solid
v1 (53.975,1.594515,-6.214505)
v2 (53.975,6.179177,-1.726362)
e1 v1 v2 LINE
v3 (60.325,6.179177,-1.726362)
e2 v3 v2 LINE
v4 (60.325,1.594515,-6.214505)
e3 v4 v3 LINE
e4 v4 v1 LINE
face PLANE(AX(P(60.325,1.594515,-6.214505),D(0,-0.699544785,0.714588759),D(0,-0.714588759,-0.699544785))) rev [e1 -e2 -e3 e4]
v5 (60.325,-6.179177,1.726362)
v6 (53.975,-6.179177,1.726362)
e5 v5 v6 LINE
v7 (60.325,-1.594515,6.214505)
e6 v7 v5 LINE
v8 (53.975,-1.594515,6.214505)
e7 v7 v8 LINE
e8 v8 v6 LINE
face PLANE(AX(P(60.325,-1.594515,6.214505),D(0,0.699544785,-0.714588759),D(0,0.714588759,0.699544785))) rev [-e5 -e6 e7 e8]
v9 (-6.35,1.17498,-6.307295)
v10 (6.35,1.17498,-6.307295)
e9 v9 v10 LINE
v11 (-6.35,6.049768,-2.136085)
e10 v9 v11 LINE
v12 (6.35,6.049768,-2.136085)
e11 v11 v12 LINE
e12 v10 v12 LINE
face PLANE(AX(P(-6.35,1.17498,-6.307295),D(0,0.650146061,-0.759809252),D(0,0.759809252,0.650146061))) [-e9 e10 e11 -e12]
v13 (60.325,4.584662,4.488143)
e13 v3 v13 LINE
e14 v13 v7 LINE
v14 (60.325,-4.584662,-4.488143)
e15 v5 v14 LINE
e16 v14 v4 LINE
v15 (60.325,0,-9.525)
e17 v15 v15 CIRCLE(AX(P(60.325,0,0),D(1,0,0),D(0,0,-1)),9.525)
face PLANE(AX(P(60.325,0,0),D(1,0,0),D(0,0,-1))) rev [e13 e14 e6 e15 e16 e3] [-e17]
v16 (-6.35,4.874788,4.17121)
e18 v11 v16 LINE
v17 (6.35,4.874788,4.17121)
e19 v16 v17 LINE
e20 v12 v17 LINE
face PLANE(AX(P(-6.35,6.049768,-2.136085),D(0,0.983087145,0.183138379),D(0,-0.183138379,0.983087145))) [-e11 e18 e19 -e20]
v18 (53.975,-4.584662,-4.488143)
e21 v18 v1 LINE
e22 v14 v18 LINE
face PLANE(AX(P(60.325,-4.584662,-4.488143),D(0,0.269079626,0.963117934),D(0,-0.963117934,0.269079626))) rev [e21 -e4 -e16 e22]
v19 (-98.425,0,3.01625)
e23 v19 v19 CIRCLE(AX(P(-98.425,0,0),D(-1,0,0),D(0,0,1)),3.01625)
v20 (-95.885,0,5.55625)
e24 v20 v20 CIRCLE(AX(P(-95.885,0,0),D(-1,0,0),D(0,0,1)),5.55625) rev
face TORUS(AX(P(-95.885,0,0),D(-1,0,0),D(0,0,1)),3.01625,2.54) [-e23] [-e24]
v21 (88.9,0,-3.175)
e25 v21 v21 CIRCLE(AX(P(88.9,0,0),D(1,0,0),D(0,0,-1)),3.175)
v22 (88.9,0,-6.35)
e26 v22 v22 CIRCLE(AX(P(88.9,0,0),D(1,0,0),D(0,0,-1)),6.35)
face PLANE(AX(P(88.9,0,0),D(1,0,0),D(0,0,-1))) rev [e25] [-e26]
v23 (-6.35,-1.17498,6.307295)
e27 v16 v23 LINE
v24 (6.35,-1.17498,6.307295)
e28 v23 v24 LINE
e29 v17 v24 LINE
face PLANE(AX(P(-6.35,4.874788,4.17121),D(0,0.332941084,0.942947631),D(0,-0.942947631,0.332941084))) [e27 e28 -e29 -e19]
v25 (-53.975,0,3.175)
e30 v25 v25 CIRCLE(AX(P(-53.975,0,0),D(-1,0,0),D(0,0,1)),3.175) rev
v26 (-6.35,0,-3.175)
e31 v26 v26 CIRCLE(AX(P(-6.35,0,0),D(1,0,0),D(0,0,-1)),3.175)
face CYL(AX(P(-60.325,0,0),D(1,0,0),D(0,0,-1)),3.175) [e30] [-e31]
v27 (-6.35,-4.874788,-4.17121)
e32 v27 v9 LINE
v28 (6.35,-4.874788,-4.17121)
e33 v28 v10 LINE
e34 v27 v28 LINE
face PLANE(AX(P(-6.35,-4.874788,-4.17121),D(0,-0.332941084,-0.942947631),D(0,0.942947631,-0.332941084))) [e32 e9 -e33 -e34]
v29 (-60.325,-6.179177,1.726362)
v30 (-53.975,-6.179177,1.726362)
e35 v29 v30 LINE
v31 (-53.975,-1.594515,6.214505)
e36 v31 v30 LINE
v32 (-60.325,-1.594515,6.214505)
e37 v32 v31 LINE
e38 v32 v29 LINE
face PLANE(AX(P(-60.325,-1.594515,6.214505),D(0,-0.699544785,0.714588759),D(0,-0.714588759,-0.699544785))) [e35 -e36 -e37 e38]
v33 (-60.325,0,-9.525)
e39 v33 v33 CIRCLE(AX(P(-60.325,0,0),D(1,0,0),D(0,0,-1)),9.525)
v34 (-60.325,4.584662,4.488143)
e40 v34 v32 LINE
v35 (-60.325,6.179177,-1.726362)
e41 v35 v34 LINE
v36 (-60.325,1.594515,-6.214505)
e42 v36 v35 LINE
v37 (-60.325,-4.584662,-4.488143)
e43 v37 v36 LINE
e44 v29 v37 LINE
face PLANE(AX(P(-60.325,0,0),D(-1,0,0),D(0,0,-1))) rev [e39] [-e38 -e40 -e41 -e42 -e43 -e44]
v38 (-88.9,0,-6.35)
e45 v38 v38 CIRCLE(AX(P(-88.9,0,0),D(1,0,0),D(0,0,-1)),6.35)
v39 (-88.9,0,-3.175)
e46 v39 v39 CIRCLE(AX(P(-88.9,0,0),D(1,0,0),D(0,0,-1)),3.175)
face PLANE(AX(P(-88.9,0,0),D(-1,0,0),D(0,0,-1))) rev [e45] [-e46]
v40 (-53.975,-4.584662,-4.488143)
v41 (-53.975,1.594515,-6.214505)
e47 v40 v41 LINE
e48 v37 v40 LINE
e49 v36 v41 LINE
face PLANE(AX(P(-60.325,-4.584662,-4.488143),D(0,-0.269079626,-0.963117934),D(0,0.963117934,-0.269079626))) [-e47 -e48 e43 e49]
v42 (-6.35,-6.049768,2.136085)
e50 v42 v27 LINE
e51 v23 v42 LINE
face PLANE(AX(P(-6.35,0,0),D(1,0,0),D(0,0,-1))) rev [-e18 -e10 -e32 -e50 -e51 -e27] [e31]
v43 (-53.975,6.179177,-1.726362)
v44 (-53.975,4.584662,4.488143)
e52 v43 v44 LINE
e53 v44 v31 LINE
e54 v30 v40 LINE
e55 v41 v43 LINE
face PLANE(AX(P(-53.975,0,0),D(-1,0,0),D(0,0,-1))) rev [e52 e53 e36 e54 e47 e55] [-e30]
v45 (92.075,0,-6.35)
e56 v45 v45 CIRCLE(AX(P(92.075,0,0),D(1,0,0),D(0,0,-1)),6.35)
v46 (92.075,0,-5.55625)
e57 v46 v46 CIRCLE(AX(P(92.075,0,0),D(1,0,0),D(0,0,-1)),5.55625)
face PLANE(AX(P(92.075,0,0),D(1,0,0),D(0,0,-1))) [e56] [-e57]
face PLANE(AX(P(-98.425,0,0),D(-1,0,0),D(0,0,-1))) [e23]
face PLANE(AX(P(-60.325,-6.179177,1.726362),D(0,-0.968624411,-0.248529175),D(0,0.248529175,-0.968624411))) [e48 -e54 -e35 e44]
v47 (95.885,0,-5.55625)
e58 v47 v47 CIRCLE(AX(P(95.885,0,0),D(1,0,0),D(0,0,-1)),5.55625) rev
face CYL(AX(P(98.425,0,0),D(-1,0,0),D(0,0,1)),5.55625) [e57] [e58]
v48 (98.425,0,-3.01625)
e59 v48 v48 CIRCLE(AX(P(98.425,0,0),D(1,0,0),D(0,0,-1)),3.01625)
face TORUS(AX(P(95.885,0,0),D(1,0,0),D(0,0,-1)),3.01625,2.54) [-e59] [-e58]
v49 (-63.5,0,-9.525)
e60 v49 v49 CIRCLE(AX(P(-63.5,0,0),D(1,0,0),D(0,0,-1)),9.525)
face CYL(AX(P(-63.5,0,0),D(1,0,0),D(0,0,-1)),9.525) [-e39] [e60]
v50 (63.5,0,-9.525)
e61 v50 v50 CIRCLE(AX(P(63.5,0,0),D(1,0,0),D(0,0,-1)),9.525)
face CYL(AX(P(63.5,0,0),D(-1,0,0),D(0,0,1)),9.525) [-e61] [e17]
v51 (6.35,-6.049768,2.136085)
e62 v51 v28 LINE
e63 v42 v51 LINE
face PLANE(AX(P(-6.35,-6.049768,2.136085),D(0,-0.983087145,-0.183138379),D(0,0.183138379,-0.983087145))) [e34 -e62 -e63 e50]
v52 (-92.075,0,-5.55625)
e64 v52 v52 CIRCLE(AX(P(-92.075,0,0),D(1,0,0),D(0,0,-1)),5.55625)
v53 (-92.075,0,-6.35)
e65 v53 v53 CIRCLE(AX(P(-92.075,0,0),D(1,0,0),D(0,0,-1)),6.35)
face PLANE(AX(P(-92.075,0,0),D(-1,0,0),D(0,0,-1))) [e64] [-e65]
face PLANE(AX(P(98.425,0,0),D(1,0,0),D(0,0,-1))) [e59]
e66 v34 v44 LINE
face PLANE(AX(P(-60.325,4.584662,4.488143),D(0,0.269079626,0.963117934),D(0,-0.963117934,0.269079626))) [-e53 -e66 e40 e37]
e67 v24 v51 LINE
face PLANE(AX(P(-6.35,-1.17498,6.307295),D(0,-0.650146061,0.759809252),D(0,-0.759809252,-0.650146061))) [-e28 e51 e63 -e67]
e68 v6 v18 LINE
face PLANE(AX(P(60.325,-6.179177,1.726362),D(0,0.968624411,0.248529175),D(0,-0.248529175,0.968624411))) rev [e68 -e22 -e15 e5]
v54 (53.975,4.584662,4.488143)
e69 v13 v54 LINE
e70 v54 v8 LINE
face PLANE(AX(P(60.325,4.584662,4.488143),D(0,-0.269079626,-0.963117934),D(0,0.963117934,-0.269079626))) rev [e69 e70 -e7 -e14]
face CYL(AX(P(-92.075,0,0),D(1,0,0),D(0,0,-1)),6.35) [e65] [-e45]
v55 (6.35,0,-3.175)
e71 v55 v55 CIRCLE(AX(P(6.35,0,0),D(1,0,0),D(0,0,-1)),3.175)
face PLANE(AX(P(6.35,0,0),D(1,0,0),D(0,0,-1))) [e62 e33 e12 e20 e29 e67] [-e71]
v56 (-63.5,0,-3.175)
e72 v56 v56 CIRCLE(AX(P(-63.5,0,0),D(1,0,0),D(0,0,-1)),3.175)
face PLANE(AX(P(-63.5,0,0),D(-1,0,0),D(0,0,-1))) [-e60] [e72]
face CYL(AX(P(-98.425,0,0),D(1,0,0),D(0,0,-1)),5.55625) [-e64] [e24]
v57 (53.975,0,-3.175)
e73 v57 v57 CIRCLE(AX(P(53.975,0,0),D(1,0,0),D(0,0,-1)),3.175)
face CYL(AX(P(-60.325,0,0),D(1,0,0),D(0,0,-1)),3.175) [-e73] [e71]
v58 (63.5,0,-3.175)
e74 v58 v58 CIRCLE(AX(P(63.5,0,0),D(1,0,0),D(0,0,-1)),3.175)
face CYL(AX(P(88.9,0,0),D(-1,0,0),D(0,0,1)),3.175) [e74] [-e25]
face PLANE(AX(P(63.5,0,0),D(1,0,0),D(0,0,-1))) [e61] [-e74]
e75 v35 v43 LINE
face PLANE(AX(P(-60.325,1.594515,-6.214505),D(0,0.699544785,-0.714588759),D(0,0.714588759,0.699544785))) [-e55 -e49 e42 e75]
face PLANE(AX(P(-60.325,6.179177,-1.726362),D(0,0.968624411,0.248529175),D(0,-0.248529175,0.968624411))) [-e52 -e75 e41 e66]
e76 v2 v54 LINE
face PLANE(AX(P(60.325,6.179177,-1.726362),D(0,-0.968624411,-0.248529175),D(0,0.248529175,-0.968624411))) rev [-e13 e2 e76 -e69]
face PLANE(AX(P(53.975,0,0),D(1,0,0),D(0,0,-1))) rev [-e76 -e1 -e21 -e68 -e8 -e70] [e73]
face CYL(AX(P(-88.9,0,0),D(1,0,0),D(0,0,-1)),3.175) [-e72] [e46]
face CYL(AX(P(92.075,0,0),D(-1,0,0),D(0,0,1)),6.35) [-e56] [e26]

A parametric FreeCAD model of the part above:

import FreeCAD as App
import Part
import Sketcher

V = App.Vector
Q = App.Units.Quantity


def edges_at(feature, points):
    """Names of the edges that pass closest to the given points."""
    edges = feature.Shape.Edges
    near = lambda p: min(range(len(edges)), key=lambda i: edges[i].distToShape(Part.Vertex(*p))[0])
    return sorted({f"Edge{near(p) + 1}" for p in points})

doc = App.newDocument("Part")
body = doc.addObject("PartDesign::Body", "Body")

# Sketch on YZ plane
sketch1 = body.newObject("Sketcher::SketchObject", "Sketch")
sketch1.AttachmentSupport = (doc.getObject("YZ_Plane"), [""])
sketch1.MapMode = "FlatFace"
sketch1.addGeometry(Part.LineSegment(V(-4.874788, -4.17121, 0), V(1.17498, -6.307295, 0)), False)
sketch1.addGeometry(Part.LineSegment(V(1.17498, -6.307295, 0), V(6.049768, -2.136085, 0)), False)
sketch1.addGeometry(Part.LineSegment(V(6.049768, -2.136085, 0), V(4.874788, 4.17121, 0)), False)
sketch1.addGeometry(Part.LineSegment(V(4.874788, 4.17121, 0), V(-1.17498, 6.307295, 0)), False)
sketch1.addGeometry(Part.LineSegment(V(-1.17498, 6.307295, 0), V(-6.049768, 2.136085, 0)), False)
sketch1.addGeometry(Part.LineSegment(V(-6.049768, 2.136085, 0), V(-4.874788, -4.17121, 0)), False)
sketch1.addConstraint(Sketcher.Constraint("Coincident", 0, 2, 1, 1))
sketch1.addConstraint(Sketcher.Constraint("Coincident", 1, 2, 2, 1))
sketch1.addConstraint(Sketcher.Constraint("Coincident", 2, 2, 3, 1))
sketch1.addConstraint(Sketcher.Constraint("Coincident", 3, 2, 4, 1))
sketch1.addConstraint(Sketcher.Constraint("Coincident", 4, 2, 5, 1))
sketch1.addConstraint(Sketcher.Constraint("Coincident", 5, 2, 0, 1))
sketch1.addConstraint(Sketcher.Constraint("Symmetric", 0, 2, 3, 2, -1, 1))
sketch1.addConstraint(Sketcher.Constraint("Symmetric", 1, 2, 4, 2, -1, 1))
sketch1.addConstraint(Sketcher.Constraint("Symmetric", 2, 2, 5, 2, -1, 1))
sketch1.addConstraint(Sketcher.Constraint("Equal", 0, 1))
sketch1.addConstraint(Sketcher.Constraint("Equal", 1, 2))
sketch1.addConstraint(Sketcher.Constraint("DistanceX", -1, 1, 0, 2, 1.17498))
sketch1.addConstraint(Sketcher.Constraint("DistanceY", -1, 1, 2, 2, 4.17121))
sketch1.addConstraint(Sketcher.Constraint("DistanceY", 0, 2, 1, 2, 4.17121))
sketch1.addConstraint(Sketcher.Constraint("DistanceX", 2, 2, 1, 2, 1.17498))
pad1 = body.newObject("PartDesign::Pad", "Pad")
pad1.Profile = sketch1
pad1.Type = "TwoLengths"
pad1.Length = Q("0.25 in")
pad1.Length2 = Q("0.25 in")

# Sketch on YZ plane
sketch2 = body.newObject("Sketcher::SketchObject", "Sketch001")
sketch2.AttachmentSupport = (doc.getObject("YZ_Plane"), [""])
sketch2.MapMode = "FlatFace"
sketch2.AttachmentOffset = App.Placement(V(0, 0, 0.25 * 25.4), App.Rotation())
sketch2.addGeometry(Part.Circle(V(0, 0, 0), V(0, 0, 1), 3.175), False)
sketch2.addConstraint(Sketcher.Constraint("Coincident", 0, 3, -1, 1))
sketch2.addConstraint(Sketcher.Constraint("Diameter", 0, Q("0.25 in")))
pad2 = body.newObject("PartDesign::Pad", "Pad001")
pad2.Profile = sketch2
pad2.Type = "TwoLengths"
pad2.Length = Q("1.875 in")
pad2.Length2 = Q("2.625 in")

# Sketch on YZ plane
sketch3 = body.newObject("Sketcher::SketchObject", "Sketch002")
sketch3.AttachmentSupport = (doc.getObject("YZ_Plane"), [""])
sketch3.MapMode = "FlatFace"
sketch3.AttachmentOffset = App.Placement(V(0, 0, 2.125 * 25.4), App.Rotation())
sketch3.addGeometry(Part.LineSegment(V(-4.584662, -4.488143, 0), V(1.594515, -6.214505, 0)), False)
sketch3.addGeometry(Part.LineSegment(V(1.594515, -6.214505, 0), V(6.179177, -1.726362, 0)), False)
sketch3.addGeometry(Part.LineSegment(V(6.179177, -1.726362, 0), V(4.584662, 4.488143, 0)), False)
sketch3.addGeometry(Part.LineSegment(V(4.584662, 4.488143, 0), V(-1.594515, 6.214505, 0)), False)
sketch3.addGeometry(Part.LineSegment(V(-1.594515, 6.214505, 0), V(-6.179177, 1.726362, 0)), False)
sketch3.addGeometry(Part.LineSegment(V(-6.179177, 1.726362, 0), V(-4.584662, -4.488143, 0)), False)
sketch3.addConstraint(Sketcher.Constraint("Coincident", 0, 2, 1, 1))
sketch3.addConstraint(Sketcher.Constraint("Coincident", 1, 2, 2, 1))
sketch3.addConstraint(Sketcher.Constraint("Coincident", 2, 2, 3, 1))
sketch3.addConstraint(Sketcher.Constraint("Coincident", 3, 2, 4, 1))
sketch3.addConstraint(Sketcher.Constraint("Coincident", 4, 2, 5, 1))
sketch3.addConstraint(Sketcher.Constraint("Coincident", 5, 2, 0, 1))
sketch3.addConstraint(Sketcher.Constraint("Symmetric", 0, 2, 3, 2, -1, 1))
sketch3.addConstraint(Sketcher.Constraint("Symmetric", 1, 2, 4, 2, -1, 1))
sketch3.addConstraint(Sketcher.Constraint("Symmetric", 2, 2, 5, 2, -1, 1))
sketch3.addConstraint(Sketcher.Constraint("Equal", 0, 1))
sketch3.addConstraint(Sketcher.Constraint("Equal", 1, 2))
sketch3.addConstraint(Sketcher.Constraint("DistanceY", 0, 2, 2, 2, 10.702648))
sketch3.addConstraint(Sketcher.Constraint("DistanceX", 3, 2, 1, 2, 7.773691))
sketch3.addConstraint(Sketcher.Constraint("DistanceX", 3, 2, 0, 2, 3.189029))
sketch3.addConstraint(Sketcher.Constraint("DistanceY", 0, 2, 3, 2, 12.42901))
pad3 = body.newObject("PartDesign::Pad", "Pad002")
pad3.Profile = sketch3
pad3.Length = Q("0.25 in")

# Sketch on YZ plane
sketch4 = body.newObject("Sketcher::SketchObject", "Sketch003")
sketch4.AttachmentSupport = (doc.getObject("YZ_Plane"), [""])
sketch4.MapMode = "FlatFace"
sketch4.AttachmentOffset = App.Placement(V(0, 0, 2.375 * 25.4), App.Rotation())
sketch4.addGeometry(Part.Circle(V(0, 0, 0), V(0, 0, 1), 9.525), False)
sketch4.addConstraint(Sketcher.Constraint("Coincident", 0, 3, -1, 1))
sketch4.addConstraint(Sketcher.Constraint("Diameter", 0, Q("0.75 in")))
pad4 = body.newObject("PartDesign::Pad", "Pad003")
pad4.Profile = sketch4
pad4.Length = Q("0.125 in")
doc.recompute()

mirrored = body.newObject("PartDesign::Mirrored", "Mirrored")
mirrored.Originals = [pad3, pad4]
mirrored.MirrorPlane = (doc.getObject("YZ_Plane"), [""])
body.Tip = mirrored

# Sketch on YZ plane
sketch5 = body.newObject("Sketcher::SketchObject", "Sketch004")
sketch5.AttachmentSupport = (doc.getObject("YZ_Plane"), [""])
sketch5.MapMode = "FlatFace"
sketch5.AttachmentOffset = App.Placement(V(0, 0, 2.5 * 25.4), App.Rotation())
sketch5.addGeometry(Part.Circle(V(0, 0, 0), V(0, 0, 1), 3.175), False)
sketch5.addConstraint(Sketcher.Constraint("Coincident", 0, 3, -1, 1))
sketch5.addConstraint(Sketcher.Constraint("Diameter", 0, Q("0.25 in")))
pad5 = body.newObject("PartDesign::Pad", "Pad004")
pad5.Profile = sketch5
pad5.Length = Q("1 in")

# Sketch on YZ plane
sketch6 = body.newObject("Sketcher::SketchObject", "Sketch005")
sketch6.AttachmentSupport = (doc.getObject("YZ_Plane"), [""])
sketch6.MapMode = "FlatFace"
sketch6.AttachmentOffset = App.Placement(V(0, 0, 3.5 * 25.4), App.Rotation())
sketch6.addGeometry(Part.Circle(V(0, 0, 0), V(0, 0, 1), 6.35), False)
sketch6.addConstraint(Sketcher.Constraint("Coincident", 0, 3, -1, 1))
sketch6.addConstraint(Sketcher.Constraint("Diameter", 0, Q("0.5 in")))
pad6 = body.newObject("PartDesign::Pad", "Pad005")
pad6.Profile = sketch6
pad6.Length = Q("0.125 in")

# Sketch on YZ plane
sketch7 = body.newObject("Sketcher::SketchObject", "Sketch006")
sketch7.AttachmentSupport = (doc.getObject("YZ_Plane"), [""])
sketch7.MapMode = "FlatFace"
sketch7.AttachmentOffset = App.Placement(V(0, 0, 3.625 * 25.4), App.Rotation())
sketch7.addGeometry(Part.Circle(V(0, 0, 0), V(0, 0, 1), 5.55625), False)
sketch7.addConstraint(Sketcher.Constraint("Coincident", 0, 3, -1, 1))
sketch7.addConstraint(Sketcher.Constraint("Diameter", 0, Q("0.4375 in")))
pad7 = body.newObject("PartDesign::Pad", "Pad006")
pad7.Profile = sketch7
pad7.Length = Q("0.25 in")
doc.recompute()

fillet = body.newObject("PartDesign::Fillet", "Fillet")
fillet.Base = (pad7, edges_at(pad7, [(98.425, 0, 5.556)]))
fillet.Radius = Q("0.1 in")
doc.recompute()

mirrored2 = body.newObject("PartDesign::Mirrored", "Mirrored001")
mirrored2.Originals = [pad5, pad6, pad7]
mirrored2.MirrorPlane = (doc.getObject("YZ_Plane"), [""])
body.Tip = mirrored2
doc.recompute()

fillet2 = body.newObject("PartDesign::Fillet", "Fillet001")
fillet2.Base = (mirrored2, edges_at(mirrored2, [(-98.425, 0, 5.556)]))
fillet2.Radius = Q("0.1 in")

doc.recompute()
